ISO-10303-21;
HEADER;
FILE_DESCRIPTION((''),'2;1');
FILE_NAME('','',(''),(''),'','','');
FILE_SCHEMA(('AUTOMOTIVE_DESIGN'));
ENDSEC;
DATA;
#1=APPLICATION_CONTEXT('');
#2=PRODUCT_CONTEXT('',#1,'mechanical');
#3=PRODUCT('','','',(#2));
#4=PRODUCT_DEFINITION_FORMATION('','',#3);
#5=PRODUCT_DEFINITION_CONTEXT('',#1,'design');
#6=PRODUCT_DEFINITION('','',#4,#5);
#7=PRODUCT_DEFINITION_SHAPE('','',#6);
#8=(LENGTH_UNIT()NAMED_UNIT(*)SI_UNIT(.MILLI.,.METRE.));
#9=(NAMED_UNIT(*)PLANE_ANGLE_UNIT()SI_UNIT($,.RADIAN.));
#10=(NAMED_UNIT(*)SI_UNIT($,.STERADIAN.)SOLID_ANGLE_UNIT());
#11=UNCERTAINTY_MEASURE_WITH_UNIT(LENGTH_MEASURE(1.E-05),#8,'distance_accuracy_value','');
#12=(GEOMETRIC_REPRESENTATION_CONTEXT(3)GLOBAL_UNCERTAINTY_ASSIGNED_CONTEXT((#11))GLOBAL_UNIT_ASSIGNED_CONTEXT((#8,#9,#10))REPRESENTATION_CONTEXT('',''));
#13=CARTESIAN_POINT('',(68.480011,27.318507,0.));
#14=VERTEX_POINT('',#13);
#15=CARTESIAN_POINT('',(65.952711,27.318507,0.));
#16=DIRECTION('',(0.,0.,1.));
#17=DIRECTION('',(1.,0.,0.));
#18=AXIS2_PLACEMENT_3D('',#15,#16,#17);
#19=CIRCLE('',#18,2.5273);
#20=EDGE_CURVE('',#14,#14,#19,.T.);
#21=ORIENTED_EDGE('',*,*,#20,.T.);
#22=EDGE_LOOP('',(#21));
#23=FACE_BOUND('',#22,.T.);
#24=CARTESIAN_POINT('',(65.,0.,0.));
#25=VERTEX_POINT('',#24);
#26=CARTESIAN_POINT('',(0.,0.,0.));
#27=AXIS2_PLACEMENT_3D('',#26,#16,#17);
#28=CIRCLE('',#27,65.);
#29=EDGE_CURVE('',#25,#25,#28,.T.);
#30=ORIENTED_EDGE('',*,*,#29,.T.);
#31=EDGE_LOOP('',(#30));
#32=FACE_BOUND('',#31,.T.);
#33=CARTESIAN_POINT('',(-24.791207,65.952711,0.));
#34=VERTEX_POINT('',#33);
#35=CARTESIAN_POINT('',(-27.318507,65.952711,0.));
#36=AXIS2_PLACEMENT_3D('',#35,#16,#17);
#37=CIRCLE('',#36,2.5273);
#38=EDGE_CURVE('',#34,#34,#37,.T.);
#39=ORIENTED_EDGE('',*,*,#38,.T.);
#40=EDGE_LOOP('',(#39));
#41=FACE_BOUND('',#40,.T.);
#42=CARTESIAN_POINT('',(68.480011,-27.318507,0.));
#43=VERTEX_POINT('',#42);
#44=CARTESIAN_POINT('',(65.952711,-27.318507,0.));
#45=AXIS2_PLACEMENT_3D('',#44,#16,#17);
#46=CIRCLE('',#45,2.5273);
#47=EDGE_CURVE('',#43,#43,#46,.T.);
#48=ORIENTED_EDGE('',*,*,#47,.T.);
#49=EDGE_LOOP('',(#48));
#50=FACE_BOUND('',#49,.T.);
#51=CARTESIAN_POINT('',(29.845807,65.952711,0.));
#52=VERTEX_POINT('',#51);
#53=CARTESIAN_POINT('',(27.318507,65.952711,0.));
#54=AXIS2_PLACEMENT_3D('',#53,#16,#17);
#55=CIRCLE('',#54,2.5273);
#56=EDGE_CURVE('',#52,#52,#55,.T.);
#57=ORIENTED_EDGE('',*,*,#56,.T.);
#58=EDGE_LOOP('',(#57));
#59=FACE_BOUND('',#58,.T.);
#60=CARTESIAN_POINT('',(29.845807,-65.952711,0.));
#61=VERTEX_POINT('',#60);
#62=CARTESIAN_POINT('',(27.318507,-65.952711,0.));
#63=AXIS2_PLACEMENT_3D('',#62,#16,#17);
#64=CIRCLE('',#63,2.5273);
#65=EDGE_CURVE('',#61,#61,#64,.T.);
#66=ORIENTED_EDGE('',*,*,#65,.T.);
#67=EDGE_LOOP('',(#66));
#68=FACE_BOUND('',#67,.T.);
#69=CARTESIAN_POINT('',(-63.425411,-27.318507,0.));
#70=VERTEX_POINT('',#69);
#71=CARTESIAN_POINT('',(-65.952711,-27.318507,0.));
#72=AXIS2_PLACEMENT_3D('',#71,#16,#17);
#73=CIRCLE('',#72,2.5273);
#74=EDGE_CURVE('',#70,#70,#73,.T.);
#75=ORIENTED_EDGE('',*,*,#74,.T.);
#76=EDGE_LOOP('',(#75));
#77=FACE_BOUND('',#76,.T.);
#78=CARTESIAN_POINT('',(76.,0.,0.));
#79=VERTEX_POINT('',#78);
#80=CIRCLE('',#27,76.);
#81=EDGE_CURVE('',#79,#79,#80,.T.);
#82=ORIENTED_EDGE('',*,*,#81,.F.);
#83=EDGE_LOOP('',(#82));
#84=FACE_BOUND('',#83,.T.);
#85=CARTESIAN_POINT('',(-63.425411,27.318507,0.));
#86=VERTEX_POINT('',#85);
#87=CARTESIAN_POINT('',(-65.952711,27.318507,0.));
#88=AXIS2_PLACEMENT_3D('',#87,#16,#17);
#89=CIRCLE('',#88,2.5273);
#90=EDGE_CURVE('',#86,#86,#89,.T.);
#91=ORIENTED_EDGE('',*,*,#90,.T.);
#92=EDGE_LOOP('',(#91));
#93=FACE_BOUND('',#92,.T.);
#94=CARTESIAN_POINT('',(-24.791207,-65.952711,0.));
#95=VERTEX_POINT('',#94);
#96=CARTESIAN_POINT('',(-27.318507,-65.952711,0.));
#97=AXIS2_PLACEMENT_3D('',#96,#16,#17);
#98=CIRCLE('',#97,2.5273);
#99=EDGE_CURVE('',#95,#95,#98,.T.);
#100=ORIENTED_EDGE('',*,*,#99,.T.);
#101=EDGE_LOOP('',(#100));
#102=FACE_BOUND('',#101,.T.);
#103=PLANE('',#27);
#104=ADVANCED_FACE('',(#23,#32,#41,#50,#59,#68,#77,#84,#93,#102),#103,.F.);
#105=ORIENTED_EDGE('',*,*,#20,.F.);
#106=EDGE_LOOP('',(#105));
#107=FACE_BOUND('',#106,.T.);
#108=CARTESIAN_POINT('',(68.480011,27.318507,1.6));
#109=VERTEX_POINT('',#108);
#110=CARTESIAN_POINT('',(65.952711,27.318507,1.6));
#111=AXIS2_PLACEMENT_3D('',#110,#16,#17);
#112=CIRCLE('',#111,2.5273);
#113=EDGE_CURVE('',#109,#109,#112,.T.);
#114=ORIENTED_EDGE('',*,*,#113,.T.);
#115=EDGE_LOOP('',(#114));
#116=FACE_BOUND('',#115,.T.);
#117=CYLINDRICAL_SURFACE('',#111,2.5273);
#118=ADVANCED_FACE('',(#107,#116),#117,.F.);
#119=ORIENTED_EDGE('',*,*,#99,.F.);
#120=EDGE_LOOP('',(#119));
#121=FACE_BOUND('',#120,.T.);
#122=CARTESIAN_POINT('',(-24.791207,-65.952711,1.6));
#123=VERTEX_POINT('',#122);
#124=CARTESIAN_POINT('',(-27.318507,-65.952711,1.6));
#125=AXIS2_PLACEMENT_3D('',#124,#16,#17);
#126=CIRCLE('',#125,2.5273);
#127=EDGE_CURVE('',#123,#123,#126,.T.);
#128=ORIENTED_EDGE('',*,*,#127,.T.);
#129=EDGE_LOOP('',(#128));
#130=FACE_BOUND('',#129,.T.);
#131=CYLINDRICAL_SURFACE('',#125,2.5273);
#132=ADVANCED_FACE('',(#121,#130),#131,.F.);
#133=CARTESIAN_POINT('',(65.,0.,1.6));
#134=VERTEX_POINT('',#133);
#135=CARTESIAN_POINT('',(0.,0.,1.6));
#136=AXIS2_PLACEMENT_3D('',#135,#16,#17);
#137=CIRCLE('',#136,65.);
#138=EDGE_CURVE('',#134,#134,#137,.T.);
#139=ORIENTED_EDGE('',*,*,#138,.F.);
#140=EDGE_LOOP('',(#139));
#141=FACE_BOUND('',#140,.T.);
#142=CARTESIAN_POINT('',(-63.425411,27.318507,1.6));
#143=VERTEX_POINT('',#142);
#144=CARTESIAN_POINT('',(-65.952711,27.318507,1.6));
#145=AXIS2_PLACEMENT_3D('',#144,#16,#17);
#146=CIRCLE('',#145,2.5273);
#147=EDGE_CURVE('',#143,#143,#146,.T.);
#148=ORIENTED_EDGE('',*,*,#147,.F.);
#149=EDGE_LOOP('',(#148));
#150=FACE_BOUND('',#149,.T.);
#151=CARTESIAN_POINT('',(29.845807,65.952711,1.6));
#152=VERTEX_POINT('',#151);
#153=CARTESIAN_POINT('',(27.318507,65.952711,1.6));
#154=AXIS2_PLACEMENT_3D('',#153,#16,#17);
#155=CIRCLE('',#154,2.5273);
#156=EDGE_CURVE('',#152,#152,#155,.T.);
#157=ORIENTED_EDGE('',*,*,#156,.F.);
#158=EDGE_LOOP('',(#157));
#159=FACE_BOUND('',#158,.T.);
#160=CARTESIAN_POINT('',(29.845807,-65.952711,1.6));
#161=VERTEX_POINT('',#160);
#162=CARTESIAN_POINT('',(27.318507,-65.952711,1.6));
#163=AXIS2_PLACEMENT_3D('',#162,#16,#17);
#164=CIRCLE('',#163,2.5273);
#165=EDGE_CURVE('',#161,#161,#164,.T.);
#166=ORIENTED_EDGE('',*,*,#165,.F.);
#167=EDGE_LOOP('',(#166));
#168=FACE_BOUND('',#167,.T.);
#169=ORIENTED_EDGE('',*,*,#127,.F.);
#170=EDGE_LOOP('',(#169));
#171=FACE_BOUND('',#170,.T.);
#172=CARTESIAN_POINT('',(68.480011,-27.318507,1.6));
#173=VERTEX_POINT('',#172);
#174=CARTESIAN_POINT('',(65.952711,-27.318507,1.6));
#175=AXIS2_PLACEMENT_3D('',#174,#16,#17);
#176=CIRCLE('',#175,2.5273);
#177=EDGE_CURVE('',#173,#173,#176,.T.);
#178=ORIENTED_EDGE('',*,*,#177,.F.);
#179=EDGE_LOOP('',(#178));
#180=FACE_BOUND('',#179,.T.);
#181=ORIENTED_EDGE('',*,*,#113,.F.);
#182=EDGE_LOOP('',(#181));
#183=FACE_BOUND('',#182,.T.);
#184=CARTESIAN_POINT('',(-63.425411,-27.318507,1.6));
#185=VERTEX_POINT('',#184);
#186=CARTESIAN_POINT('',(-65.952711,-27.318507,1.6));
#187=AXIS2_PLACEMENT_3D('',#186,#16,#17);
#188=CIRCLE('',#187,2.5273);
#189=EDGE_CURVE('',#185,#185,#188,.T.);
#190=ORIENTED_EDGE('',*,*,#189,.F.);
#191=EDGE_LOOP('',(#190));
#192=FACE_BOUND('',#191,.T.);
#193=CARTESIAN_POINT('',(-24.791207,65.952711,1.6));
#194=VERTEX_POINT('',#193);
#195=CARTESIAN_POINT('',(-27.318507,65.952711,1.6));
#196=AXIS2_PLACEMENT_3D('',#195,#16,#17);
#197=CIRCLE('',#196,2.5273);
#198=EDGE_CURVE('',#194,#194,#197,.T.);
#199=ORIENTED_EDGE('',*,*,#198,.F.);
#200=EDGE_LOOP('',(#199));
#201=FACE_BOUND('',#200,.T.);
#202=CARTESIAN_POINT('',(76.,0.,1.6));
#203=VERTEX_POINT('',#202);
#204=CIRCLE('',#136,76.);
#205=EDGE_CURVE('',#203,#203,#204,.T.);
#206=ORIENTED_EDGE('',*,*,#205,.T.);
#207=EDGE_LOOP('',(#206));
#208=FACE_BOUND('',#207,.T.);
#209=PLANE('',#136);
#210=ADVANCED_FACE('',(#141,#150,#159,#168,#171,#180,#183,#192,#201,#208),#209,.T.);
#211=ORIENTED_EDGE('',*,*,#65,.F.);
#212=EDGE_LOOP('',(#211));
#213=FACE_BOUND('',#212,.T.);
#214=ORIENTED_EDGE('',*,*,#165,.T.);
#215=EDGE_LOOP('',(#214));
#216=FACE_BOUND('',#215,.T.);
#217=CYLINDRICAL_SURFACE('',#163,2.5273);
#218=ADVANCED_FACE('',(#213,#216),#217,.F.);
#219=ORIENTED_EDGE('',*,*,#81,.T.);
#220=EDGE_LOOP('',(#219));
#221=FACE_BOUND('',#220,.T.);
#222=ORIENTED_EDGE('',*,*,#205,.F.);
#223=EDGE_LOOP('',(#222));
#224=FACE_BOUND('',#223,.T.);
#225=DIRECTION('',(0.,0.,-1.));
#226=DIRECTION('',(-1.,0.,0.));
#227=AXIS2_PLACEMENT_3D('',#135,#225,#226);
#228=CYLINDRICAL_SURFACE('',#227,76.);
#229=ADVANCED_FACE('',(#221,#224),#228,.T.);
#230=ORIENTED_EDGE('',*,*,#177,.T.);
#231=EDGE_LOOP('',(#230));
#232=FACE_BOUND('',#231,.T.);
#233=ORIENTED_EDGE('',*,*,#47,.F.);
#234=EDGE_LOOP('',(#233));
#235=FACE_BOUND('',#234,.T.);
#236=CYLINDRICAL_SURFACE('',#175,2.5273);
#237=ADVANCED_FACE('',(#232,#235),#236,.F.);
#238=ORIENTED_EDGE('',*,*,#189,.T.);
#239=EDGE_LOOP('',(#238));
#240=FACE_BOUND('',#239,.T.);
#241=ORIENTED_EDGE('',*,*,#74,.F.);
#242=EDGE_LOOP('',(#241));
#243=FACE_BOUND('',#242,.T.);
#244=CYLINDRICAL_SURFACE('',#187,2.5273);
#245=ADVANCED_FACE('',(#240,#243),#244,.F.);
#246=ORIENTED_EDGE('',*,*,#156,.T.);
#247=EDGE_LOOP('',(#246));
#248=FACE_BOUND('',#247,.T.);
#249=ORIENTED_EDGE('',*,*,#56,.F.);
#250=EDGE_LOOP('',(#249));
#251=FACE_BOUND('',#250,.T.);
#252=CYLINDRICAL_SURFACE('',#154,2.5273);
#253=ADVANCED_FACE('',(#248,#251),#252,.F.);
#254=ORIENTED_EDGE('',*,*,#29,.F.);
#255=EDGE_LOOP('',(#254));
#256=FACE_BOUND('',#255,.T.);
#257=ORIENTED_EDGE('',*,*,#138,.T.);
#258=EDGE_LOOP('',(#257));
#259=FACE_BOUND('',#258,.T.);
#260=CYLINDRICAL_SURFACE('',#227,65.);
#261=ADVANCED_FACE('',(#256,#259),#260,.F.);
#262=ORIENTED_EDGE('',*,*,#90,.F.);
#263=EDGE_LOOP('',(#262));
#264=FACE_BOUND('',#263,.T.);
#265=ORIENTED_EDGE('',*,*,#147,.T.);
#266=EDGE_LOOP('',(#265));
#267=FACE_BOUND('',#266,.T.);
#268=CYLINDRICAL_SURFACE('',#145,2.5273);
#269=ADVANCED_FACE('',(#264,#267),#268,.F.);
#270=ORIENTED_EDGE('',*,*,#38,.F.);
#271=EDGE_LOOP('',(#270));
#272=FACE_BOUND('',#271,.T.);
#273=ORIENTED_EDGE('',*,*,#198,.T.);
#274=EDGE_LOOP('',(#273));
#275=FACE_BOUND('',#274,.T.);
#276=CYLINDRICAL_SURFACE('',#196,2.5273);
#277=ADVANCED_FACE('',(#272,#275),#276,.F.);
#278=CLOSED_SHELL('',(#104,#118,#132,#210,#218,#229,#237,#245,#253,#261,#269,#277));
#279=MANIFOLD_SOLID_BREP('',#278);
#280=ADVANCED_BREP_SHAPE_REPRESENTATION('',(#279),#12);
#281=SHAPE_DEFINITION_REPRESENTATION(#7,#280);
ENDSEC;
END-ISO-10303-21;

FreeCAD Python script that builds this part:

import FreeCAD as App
import Part
import Sketcher
from FreeCAD import Vector

doc = App.newDocument("Part")
params = doc.addObject("Spreadsheet::Sheet", "Params")
for row, (alias, value) in enumerate([
    ("sketch1_diameter", "152 mm"),
    ("sketch1_diameter2", "130 mm"),
    ("pad1_length", "1.6 mm"),
    ("hole_diameter", "5.0546 mm"),
    ("hole_depth", "8.481445 mm"),
], start=1):
    params.set(f"A{row}", alias)
    params.set(f"B{row}", "=" + value)
    params.setAlias(f"B{row}", alias)

body = doc.addObject("PartDesign::Body", "Body")

# Sketch on XY plane
sketch1 = body.newObject("Sketcher::SketchObject", "Sketch")
sketch1.AttachmentSupport = (doc.getObject("XY_Plane"), [""])
sketch1.MapMode = "FlatFace"
sketch1.addGeometry([
    Part.Circle(Vector(0, 0, 0), Vector(0, 0, 1), 76),
    Part.Circle(Vector(0, 0, 0), Vector(0, 0, 1), 65),
], False)
sketch1.addConstraint([
    Sketcher.Constraint("Coincident", 0, 3, -1, 1),
    Sketcher.Constraint("Coincident", 1, 3, -1, 1),
    Sketcher.Constraint("Diameter", 0, 152.0),
    Sketcher.Constraint("Diameter", 1, 130.0),
])
sketch1.setExpression("Constraints[2]", "Params.sketch1_diameter")
sketch1.setExpression("Constraints[3]", "Params.sketch1_diameter2")
pad1 = body.newObject("PartDesign::Pad", "Pad")
pad1.Profile = sketch1
pad1.setExpression("Length", "Params.pad1_length")

# Sketch on XY plane
sketch2 = body.newObject("Sketcher::SketchObject", "Sketch001")
sketch2.AttachmentSupport = (doc.getObject("XY_Plane"), [""])
sketch2.MapMode = "FlatFace"
sketch2.AttachmentOffset = App.Placement(Vector(0, 0, 1.6), App.Rotation())
sketch2.addGeometry([
    Part.Circle(Vector(-27.318507, 65.952711, 0), Vector(0, 0, 1), 2.5273),  # 0
    Part.Circle(Vector(27.318507, 65.952711, 0), Vector(0, 0, 1), 2.5273),  # 1
    Part.Circle(Vector(65.952711, 27.318507, 0), Vector(0, 0, 1), 2.5273),  # 2
    Part.Circle(Vector(65.952711, -27.318507, 0), Vector(0, 0, 1), 2.5273),  # 3
    Part.Circle(Vector(27.318507, -65.952711, 0), Vector(0, 0, 1), 2.5273),  # 4
    Part.Circle(Vector(-27.318507, -65.952711, 0), Vector(0, 0, 1), 2.5273),  # 5
    Part.Circle(Vector(-65.952711, -27.318507, 0), Vector(0, 0, 1), 2.5273),  # 6
    Part.Circle(Vector(-65.952711, 27.318507, 0), Vector(0, 0, 1), 2.5273),  # 7
], False)
sketch2.addConstraint([
    Sketcher.Constraint("Equal", 0, 1),
    Sketcher.Constraint("Equal", 1, 2),
    Sketcher.Constraint("Equal", 2, 3),
    Sketcher.Constraint("Equal", 3, 4),
    Sketcher.Constraint("Equal", 4, 5),
    Sketcher.Constraint("Equal", 5, 6),
    Sketcher.Constraint("Equal", 6, 7),
    Sketcher.Constraint("Symmetric", 0, 3, 4, 3, -1, 1),
    Sketcher.Constraint("Symmetric", 1, 3, 5, 3, -1, 1),
    Sketcher.Constraint("Symmetric", 2, 3, 6, 3, -1, 1),
    Sketcher.Constraint("Symmetric", 3, 3, 7, 3, -1, 1),
    Sketcher.Constraint("Symmetric", 0, 3, 1, 3, -2),
    Sketcher.Constraint("Symmetric", 3, 3, 6, 3, -2),
    Sketcher.Constraint("Diameter", 0, 5.0546),
    Sketcher.Constraint("DistanceY", -1, 1, 0, 3, 65.952711),
    Sketcher.Constraint("DistanceX", -1, 1, 2, 3, 65.952711),
    Sketcher.Constraint("DistanceX", 0, 3, 2, 3, 93.271218),
    Sketcher.Constraint("DistanceY", 3, 3, 1, 3, 93.271218),
])
doc.recompute()
hole = body.newObject("PartDesign::Hole", "Hole")
hole.Profile = sketch2
hole.ThreadType = "None"
hole.setExpression("Diameter", "Params.hole_diameter")
hole.DepthType = "Dimension"
hole.setExpression("Depth", "Params.hole_depth")
hole.DrillPoint = "Angled"
hole.DrillPointAngle = 118

doc.recompute()
